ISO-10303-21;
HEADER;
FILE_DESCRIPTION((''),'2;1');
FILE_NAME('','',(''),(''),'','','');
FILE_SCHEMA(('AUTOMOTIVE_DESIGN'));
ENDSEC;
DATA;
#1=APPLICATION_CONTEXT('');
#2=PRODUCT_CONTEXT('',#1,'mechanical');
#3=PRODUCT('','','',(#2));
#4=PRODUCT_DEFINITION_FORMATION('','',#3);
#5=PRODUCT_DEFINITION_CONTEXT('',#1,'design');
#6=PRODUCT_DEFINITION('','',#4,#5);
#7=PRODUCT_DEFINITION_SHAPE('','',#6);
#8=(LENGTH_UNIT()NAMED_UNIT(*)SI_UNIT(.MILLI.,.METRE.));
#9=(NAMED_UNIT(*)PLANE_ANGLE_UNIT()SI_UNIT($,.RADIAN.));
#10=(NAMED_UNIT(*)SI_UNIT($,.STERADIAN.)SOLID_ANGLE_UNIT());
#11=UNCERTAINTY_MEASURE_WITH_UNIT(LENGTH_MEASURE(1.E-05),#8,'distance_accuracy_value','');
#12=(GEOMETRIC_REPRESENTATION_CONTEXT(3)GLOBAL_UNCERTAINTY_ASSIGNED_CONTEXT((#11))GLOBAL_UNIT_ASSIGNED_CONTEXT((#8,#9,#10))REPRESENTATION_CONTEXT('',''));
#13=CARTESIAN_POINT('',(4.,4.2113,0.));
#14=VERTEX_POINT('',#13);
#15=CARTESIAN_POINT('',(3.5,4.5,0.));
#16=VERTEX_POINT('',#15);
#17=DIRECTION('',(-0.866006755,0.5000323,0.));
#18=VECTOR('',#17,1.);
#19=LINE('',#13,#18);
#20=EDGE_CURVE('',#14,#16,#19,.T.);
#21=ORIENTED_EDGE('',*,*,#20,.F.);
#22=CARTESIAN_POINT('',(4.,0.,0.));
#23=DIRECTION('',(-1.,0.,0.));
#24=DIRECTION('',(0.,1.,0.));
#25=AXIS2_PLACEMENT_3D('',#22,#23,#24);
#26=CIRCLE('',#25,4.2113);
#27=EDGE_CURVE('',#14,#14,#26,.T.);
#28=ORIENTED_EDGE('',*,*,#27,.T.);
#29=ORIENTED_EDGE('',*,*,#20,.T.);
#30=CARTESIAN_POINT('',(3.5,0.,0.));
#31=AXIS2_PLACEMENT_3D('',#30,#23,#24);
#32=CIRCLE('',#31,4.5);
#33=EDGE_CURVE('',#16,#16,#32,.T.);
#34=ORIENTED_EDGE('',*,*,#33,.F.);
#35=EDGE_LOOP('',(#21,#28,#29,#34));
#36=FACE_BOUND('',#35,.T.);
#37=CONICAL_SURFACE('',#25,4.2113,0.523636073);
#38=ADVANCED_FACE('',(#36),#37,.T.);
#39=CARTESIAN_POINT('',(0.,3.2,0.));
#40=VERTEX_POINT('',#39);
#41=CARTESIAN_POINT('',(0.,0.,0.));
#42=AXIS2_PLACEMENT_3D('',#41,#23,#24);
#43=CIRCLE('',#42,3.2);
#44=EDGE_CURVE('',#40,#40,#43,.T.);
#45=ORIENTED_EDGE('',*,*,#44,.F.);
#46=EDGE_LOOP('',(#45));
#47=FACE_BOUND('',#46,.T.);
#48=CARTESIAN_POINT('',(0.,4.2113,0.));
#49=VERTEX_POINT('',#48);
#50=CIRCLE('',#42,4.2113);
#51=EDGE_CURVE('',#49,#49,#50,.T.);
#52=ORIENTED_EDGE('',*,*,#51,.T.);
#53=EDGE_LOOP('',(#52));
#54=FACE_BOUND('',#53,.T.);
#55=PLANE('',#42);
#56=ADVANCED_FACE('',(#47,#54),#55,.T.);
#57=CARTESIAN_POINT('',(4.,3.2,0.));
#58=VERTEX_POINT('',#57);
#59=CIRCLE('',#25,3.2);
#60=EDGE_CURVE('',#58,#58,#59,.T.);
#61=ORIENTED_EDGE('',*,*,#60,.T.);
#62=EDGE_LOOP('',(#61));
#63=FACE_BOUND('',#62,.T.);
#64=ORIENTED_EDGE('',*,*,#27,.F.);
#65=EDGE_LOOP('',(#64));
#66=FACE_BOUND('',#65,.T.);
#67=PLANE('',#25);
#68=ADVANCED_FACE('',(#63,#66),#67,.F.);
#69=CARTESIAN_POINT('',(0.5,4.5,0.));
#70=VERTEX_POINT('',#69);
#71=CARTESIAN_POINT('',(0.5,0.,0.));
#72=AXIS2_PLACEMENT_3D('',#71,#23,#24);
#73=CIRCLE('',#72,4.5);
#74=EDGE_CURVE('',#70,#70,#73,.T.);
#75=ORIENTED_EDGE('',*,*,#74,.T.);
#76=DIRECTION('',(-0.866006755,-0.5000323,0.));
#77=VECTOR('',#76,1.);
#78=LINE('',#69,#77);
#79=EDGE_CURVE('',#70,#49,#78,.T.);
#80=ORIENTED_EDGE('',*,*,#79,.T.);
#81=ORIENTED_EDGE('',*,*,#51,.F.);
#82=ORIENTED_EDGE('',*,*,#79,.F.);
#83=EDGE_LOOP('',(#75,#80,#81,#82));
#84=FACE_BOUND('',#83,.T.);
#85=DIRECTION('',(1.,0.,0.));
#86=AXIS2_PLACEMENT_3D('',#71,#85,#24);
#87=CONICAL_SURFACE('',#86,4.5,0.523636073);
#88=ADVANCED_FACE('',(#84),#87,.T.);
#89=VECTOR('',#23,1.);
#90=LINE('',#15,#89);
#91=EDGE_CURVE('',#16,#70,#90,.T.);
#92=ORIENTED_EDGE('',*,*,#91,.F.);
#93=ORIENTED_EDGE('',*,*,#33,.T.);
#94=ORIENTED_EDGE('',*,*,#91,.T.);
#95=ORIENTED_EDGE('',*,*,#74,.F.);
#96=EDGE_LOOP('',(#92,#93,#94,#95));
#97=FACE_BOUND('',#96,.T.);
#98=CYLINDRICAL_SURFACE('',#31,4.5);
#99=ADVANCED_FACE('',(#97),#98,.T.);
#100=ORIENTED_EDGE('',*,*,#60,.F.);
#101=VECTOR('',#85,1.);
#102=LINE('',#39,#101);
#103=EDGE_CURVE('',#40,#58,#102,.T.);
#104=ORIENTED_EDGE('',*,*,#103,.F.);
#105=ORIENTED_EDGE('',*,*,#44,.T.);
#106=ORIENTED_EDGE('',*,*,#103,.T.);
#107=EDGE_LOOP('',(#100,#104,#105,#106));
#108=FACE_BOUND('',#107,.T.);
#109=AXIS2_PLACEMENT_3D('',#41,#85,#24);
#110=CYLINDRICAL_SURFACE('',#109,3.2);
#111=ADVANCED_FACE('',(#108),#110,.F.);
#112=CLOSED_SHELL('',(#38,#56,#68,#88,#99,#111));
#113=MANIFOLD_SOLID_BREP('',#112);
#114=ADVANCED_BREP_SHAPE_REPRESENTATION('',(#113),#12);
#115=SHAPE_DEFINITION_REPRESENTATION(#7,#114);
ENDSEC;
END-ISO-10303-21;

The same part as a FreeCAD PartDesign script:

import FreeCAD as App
import Part
import Sketcher
Q = App.Units.Quantity


def add_polygon(sketch, points):
    """Adds a closed chain of lines whose ends are joined by coincident constraints."""
    first, n = sketch.GeometryCount, len(points)
    for a, b in zip(points, points[1:] + points[:1]):
        sketch.addGeometry(Part.LineSegment(App.Vector(*a, 0), App.Vector(*b, 0)), False)
    for i in range(n):
        sketch.addConstraint(Sketcher.Constraint("Coincident", first + i, 2, first + (i + 1) % n, 1))

doc = App.newDocument("Part")
params = doc.addObject("Spreadsheet::Sheet", "Params")
for row, (alias, value) in enumerate([
    ("sketch1_width", "4 mm"),
    ("sketch1_width2", "3 mm"),
    ("revolution_angle", "360 deg"),
], start=1):
    params.set(f"A{row}", alias)
    params.set(f"B{row}", "=" + value)
    params.setAlias(f"B{row}", alias)

body = doc.addObject("PartDesign::Body", "Body")

sketch1 = body.newObject("Sketcher::SketchObject", "Sketch")
sketch1.AttachmentSupport = (doc.getObject("XY_Plane"), [""])
sketch1.MapMode = "FlatFace"
add_polygon(sketch1, [(0, 4.2), (0, 3.2), (4, 3.2), (4, 4.2), (3.5, 4.5), (0.5, 4.5)])
sketch1.addConstraint(Sketcher.Constraint("Vertical", 0))
sketch1.addConstraint(Sketcher.Constraint("Horizontal", 1))
sketch1.addConstraint(Sketcher.Constraint("Vertical", 2))
sketch1.addConstraint(Sketcher.Constraint("Horizontal", 4))
sketch1.addConstraint(Sketcher.Constraint("PointOnObject", 0, 2, -2))
sketch1.addConstraint(Sketcher.Constraint("Horizontal", 2, 2, 5, 2))
sketch1.addConstraint(Sketcher.Constraint("Equal", 3, 5))
sketch1.addConstraint(Sketcher.Constraint("DistanceX", 1, 1, 1, 2, Q("4 mm")))
sketch1.addConstraint(Sketcher.Constraint("DistanceX", 4, 2, 4, 1, Q("3 mm")))
sketch1.addConstraint(Sketcher.Constraint("DistanceY", -1, 1, 0, 2, Q("3.2 mm")))
sketch1.addConstraint(Sketcher.Constraint("DistanceY", -1, 1, 3, 2, Q("4.5 mm")))
sketch1.addConstraint(Sketcher.Constraint("DistanceY", 0, 2, 0, 1, Q("1.0113 mm")))
sketch1.setExpression("Constraints[13]", "Params.sketch1_width")
sketch1.setExpression("Constraints[14]", "Params.sketch1_width2")
revolution = body.newObject("PartDesign::Revolution", "Revolution")
revolution.Profile = sketch1
revolution.ReferenceAxis = (sketch1, ["H_Axis"])
revolution.setExpression("Angle", "Params.revolution_angle")

doc.recompute()
